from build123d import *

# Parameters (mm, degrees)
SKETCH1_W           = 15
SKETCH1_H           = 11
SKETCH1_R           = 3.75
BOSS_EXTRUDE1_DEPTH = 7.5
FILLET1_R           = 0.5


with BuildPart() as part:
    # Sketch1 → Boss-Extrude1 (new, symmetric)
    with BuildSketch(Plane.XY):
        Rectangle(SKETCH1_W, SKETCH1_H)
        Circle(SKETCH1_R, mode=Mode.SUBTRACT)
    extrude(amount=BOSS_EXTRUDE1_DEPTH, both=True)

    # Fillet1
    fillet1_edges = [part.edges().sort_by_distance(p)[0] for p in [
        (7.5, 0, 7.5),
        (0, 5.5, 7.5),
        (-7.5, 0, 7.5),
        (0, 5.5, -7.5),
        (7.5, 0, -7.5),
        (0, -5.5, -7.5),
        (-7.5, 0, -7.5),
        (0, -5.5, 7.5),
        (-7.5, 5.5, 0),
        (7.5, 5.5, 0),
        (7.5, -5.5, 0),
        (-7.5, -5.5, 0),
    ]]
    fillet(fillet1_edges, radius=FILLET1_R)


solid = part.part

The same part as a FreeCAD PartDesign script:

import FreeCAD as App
import Part
import Sketcher

V = App.Vector
Q = App.Units.Quantity


def edges_at(feature, points):
    """Names of the edges that pass closest to the given points."""
    edges = feature.Shape.Edges
    near = lambda p: min(range(len(edges)), key=lambda i: edges[i].distToShape(Part.Vertex(*p))[0])
    return sorted({f"Edge{near(p) + 1}" for p in points})

doc = App.newDocument("Part")
body = doc.addObject("PartDesign::Body", "Body")

# Sketch on XY plane
sketch1 = body.newObject("Sketcher::SketchObject", "Sketch")
sketch1.AttachmentSupport = (doc.getObject("XY_Plane"), [""])
sketch1.MapMode = "FlatFace"
sketch1.addGeometry(Part.LineSegment(V(-7.5, 5.5, 0), V(-7.5, -5.5, 0)), False)
sketch1.addGeometry(Part.LineSegment(V(-7.5, -5.5, 0), V(7.5, -5.5, 0)), False)
sketch1.addGeometry(Part.LineSegment(V(7.5, -5.5, 0), V(7.5, 5.5, 0)), False)
sketch1.addGeometry(Part.LineSegment(V(7.5, 5.5, 0), V(-7.5, 5.5, 0)), False)
sketch1.addGeometry(Part.Circle(V(0, 0, 0), V(0, 0, 1), 3.8), False)
sketch1.addConstraint(Sketcher.Constraint("Coincident", 0, 2, 1, 1))
sketch1.addConstraint(Sketcher.Constraint("Coincident", 1, 2, 2, 1))
sketch1.addConstraint(Sketcher.Constraint("Coincident", 2, 2, 3, 1))
sketch1.addConstraint(Sketcher.Constraint("Coincident", 3, 2, 0, 1))
sketch1.addConstraint(Sketcher.Constraint("Vertical", 0))
sketch1.addConstraint(Sketcher.Constraint("Horizontal", 1))
sketch1.addConstraint(Sketcher.Constraint("Vertical", 2))
sketch1.addConstraint(Sketcher.Constraint("Horizontal", 3))
sketch1.addConstraint(Sketcher.Constraint("Coincident", 4, 3, -1, 1))
sketch1.addConstraint(Sketcher.Constraint("Symmetric", 0, 2, 2, 2, -1, 1))
sketch1.addConstraint(Sketcher.Constraint("Diameter", 4, Q("7.5 mm")))
sketch1.addConstraint(Sketcher.Constraint("DistanceX", 1, 1, 1, 2, Q("15 mm")))
sketch1.addConstraint(Sketcher.Constraint("DistanceY", 0, 2, 0, 1, Q("11 mm")))
pad1 = body.newObject("PartDesign::Pad", "Pad")
pad1.Profile = sketch1
pad1.Length = 15
pad1.Midplane = True
doc.recompute()

fillet = body.newObject("PartDesign::Fillet", "Fillet")
fillet.Base = (pad1, edges_at(pad1, [
    (7.5, 0, 7.5),
    (0, 5.5, 7.5),
    (-7.5, 0, 7.5),
    (0, 5.5, -7.5),
    (7.5, 0, -7.5),
    (0, -5.5, -7.5),
    (-7.5, 0, -7.5),
    (0, -5.5, 7.5),
    (-7.5, 5.5, 0),
    (7.5, 5.5, 0),
    (7.5, -5.5, 0),
    (-7.5, -5.5, 0),
]))
fillet.Radius = 0.5

doc.recompute()
